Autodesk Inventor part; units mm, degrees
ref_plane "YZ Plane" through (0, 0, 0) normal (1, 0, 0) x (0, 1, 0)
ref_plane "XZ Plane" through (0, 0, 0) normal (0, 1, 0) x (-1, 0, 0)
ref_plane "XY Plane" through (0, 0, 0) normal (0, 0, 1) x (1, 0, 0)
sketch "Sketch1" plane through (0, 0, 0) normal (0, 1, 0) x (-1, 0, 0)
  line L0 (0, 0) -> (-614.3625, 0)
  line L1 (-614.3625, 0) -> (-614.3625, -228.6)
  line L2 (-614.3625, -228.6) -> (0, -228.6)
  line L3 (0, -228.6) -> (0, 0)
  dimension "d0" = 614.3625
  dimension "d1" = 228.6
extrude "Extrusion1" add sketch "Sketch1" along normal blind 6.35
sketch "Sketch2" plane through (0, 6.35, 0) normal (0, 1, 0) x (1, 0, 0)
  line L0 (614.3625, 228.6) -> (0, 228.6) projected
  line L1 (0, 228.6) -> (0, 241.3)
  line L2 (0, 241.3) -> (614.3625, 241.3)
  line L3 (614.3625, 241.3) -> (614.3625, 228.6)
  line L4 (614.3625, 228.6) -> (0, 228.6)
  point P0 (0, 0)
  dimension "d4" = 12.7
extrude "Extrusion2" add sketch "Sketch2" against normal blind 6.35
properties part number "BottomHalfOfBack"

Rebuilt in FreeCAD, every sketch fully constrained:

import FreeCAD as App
import Part
import Sketcher
Q = App.Units.Quantity

doc = App.newDocument("Part")
body = doc.addObject("PartDesign::Body", "Body")

# Sketch on XZ plane
sketch1 = body.newObject("Sketcher::SketchObject", "Sketch")
sketch1.AttachmentSupport = (doc.getObject("XZ_Plane"), [""])
sketch1.MapMode = "FlatFace"
sketch1.addGeometry([
    Part.LineSegment(App.Vector(0, -229, 0), App.Vector(0, 0, 0)),
    Part.LineSegment(App.Vector(0, 0, 0), App.Vector(614, 0, 0)),
    Part.LineSegment(App.Vector(614, 0, 0), App.Vector(614, -229, 0)),
    Part.LineSegment(App.Vector(614, -229, 0), App.Vector(0, -229, 0)),
], False)
sketch1.addConstraint([
    Sketcher.Constraint("Coincident", 0, 2, 1, 1),
    Sketcher.Constraint("Coincident", 1, 2, 2, 1),
    Sketcher.Constraint("Coincident", 2, 2, 3, 1),
    Sketcher.Constraint("Coincident", 3, 2, 0, 1),
    Sketcher.Constraint("Vertical", 0),
    Sketcher.Constraint("Horizontal", 1),
    Sketcher.Constraint("Vertical", 2),
    Sketcher.Constraint("Horizontal", 3),
    Sketcher.Constraint("Coincident", 0, 2, -1, 1),
    Sketcher.Constraint("DistanceY", 0, 1, 0, 2, Q("9 in")),
    Sketcher.Constraint("DistanceX", 1, 1, 1, 2, Q("24.1875 in")),
])
pad1 = body.newObject("PartDesign::Pad", "Pad")
pad1.Profile = sketch1
pad1.Length = Q("0.25 in")
pad1.Reversed = True

# Sketch on XZ plane
sketch2 = body.newObject("Sketcher::SketchObject", "Sketch001")
sketch2.AttachmentSupport = (doc.getObject("XZ_Plane"), [""])
sketch2.MapMode = "FlatFace"
sketch2.AttachmentOffset = App.Placement(App.Vector(0, 0, -0.25 * 25.4), App.Rotation())
sketch2.addGeometry([
    Part.LineSegment(App.Vector(0, -229, 0), App.Vector(614, -229, 0)),
    Part.LineSegment(App.Vector(614, -229, 0), App.Vector(614, -241, 0)),
    Part.LineSegment(App.Vector(614, -241, 0), App.Vector(0, -241, 0)),
    Part.LineSegment(App.Vector(0, -241, 0), App.Vector(0, -229, 0)),
], False)
sketch2.addConstraint([
    Sketcher.Constraint("Coincident", 0, 2, 1, 1),
    Sketcher.Constraint("Coincident", 1, 2, 2, 1),
    Sketcher.Constraint("Coincident", 2, 2, 3, 1),
    Sketcher.Constraint("Coincident", 3, 2, 0, 1),
    Sketcher.Constraint("Horizontal", 0),
    Sketcher.Constraint("Vertical", 1),
    Sketcher.Constraint("Horizontal", 2),
    Sketcher.Constraint("Vertical", 3),
    Sketcher.Constraint("PointOnObject", 2, 2, -2),
    Sketcher.Constraint("DistanceY", 1, 2, 1, 1, Q("0.5 in")),
    Sketcher.Constraint("DistanceY", 0, 2, -1, 1, Q("9 in")),
    Sketcher.Constraint("DistanceX", 0, 1, 0, 2, Q("24.1875 in")),
])
pad2 = body.newObject("PartDesign::Pad", "Pad001")
pad2.Profile = sketch2
pad2.Length = Q("0.25 in")

doc.recompute()
